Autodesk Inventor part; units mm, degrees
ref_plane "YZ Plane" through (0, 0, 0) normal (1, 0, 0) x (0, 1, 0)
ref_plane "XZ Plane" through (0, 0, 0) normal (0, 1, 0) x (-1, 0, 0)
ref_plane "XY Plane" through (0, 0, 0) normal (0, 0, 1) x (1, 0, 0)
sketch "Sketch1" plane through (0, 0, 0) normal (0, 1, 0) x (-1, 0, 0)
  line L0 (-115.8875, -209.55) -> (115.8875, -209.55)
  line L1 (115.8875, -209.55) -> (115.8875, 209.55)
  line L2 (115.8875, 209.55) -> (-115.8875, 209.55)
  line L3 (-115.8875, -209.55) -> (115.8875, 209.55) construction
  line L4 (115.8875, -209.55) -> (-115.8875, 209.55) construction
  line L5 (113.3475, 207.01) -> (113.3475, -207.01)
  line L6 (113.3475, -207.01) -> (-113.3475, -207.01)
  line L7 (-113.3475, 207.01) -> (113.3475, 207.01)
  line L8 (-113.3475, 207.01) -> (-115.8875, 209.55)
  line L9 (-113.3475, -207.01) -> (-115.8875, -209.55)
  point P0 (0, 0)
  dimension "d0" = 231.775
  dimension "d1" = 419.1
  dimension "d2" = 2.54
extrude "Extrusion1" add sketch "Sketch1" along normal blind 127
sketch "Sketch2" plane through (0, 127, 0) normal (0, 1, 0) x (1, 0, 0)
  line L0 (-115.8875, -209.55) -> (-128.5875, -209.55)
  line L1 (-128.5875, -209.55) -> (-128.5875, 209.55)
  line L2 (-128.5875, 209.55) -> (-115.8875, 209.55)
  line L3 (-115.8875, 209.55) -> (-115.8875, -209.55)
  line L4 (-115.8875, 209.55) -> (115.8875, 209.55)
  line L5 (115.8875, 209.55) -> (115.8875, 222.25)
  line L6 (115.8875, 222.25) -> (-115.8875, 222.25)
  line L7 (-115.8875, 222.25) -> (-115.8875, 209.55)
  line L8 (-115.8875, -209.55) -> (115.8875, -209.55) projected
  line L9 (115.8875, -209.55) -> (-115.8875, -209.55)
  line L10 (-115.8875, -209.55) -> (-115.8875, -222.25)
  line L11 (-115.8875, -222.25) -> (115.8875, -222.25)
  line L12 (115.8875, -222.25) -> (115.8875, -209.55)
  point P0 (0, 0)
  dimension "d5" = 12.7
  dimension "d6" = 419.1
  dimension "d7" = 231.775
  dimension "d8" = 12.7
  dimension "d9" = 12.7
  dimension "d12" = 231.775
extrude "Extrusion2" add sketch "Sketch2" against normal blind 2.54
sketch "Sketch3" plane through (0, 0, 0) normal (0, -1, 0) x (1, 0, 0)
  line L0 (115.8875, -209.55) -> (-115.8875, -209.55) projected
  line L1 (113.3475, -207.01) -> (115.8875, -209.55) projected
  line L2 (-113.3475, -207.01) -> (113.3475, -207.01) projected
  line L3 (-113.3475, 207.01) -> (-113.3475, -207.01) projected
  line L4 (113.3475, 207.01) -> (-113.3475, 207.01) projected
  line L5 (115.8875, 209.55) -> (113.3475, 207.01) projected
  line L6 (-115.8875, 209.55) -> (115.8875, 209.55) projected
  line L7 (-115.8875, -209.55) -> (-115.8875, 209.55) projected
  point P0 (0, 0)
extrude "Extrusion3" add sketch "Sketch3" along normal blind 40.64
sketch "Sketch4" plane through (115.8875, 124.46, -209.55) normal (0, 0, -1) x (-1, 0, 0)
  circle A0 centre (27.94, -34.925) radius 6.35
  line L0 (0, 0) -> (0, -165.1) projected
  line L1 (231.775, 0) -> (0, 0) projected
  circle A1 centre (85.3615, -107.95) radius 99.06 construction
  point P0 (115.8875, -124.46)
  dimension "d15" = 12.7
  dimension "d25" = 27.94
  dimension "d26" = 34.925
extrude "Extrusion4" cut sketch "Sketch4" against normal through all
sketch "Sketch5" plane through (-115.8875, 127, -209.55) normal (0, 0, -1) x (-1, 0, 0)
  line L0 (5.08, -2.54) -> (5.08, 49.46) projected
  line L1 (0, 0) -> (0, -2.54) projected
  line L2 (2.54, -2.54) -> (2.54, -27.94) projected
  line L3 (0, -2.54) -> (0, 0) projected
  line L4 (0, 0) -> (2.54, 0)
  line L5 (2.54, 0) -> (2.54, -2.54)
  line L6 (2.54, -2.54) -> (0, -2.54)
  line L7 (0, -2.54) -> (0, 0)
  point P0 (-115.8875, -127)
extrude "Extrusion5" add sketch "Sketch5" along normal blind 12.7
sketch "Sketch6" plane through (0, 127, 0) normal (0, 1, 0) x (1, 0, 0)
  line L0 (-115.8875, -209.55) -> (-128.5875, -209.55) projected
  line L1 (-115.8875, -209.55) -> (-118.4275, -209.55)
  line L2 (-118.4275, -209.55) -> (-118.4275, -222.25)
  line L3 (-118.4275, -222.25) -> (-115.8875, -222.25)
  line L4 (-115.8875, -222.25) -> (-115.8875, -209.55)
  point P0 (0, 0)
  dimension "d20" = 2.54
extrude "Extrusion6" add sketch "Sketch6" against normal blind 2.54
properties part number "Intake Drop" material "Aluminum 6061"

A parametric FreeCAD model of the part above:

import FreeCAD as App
import Part
import Sketcher

V = App.Vector
Q = App.Units.Quantity


def add_polygon(sketch, points):
    """Adds a closed chain of lines whose ends are joined by coincident constraints."""
    first, n = sketch.GeometryCount, len(points)
    for a, b in zip(points, points[1:] + points[:1]):
        sketch.addGeometry(Part.LineSegment(App.Vector(*a, 0), App.Vector(*b, 0)), False)
    for i in range(n):
        sketch.addConstraint(Sketcher.Constraint("Coincident", first + i, 2, first + (i + 1) % n, 1))

doc = App.newDocument("Part")
body = doc.addObject("PartDesign::Body", "Body")

sketch1 = body.newObject("Sketcher::SketchObject", "Sketch")
sketch1.AttachmentSupport = (doc.getObject("XZ_Plane"), [""])
sketch1.MapMode = "FlatFace"
add_polygon(sketch1, [(113.3, -207), (115.9, -209.6), (-115.9, -209.6), (-115.9, 209.6), (115.9, 209.6), (113.3, 207), (-113.3, 207), (-113.3, -207)])
sketch1.addConstraint([
    Sketcher.Constraint("Horizontal", 1),
    Sketcher.Constraint("Vertical", 2),
    Sketcher.Constraint("Horizontal", 3),
    Sketcher.Constraint("Horizontal", 5),
    Sketcher.Constraint("Vertical", 6),
    Sketcher.Constraint("Horizontal", 7),
    Sketcher.Constraint("Symmetric", 0, 2, 2, 2, -1, 1),
    Sketcher.Constraint("Symmetric", 4, 2, 6, 2, -1, 1),
    Sketcher.Constraint("Perpendicular", 0, 4),
    Sketcher.Constraint("Vertical", 0, 2, 3, 2),
    Sketcher.Constraint("Vertical", 4, 2, 7, 2),
    Sketcher.Constraint("DistanceY", 2, 1, 2, 2, Q("16.5 in")),
    Sketcher.Constraint("DistanceX", 4, 2, 3, 2, Q("0.1 in")),
    Sketcher.Constraint("DistanceX", 1, 2, 1, 1, Q("9.125 in")),
])
pad1 = body.newObject("PartDesign::Pad", "Pad")
pad1.Profile = sketch1
pad1.Length = Q("5 in")
pad1.Reversed = True

sketch2 = body.newObject("Sketcher::SketchObject", "Sketch001")
sketch2.AttachmentSupport = (doc.getObject("XZ_Plane"), [""])
sketch2.MapMode = "FlatFace"
sketch2.AttachmentOffset = App.Placement(V(0, 0, -5 * 25.4), App.Rotation())
add_polygon(sketch2, [(-116, -222), (-116, -210), (116, -210), (116, -222)])
add_polygon(sketch2, [(-129, 210), (-116, 210), (-116, -210), (-129, -210)])
add_polygon(sketch2, [(116, 210), (-116, 210), (-116, 222), (116, 222)])
sketch2.addConstraint([
    Sketcher.Constraint("Vertical", 0),
    Sketcher.Constraint("Horizontal", 1),
    Sketcher.Constraint("Vertical", 2),
    Sketcher.Constraint("Horizontal", 3),
    Sketcher.Constraint("Horizontal", 4),
    Sketcher.Constraint("Vertical", 5),
    Sketcher.Constraint("Horizontal", 6),
    Sketcher.Constraint("Vertical", 7),
    Sketcher.Constraint("Horizontal", 8),
    Sketcher.Constraint("Vertical", 9),
    Sketcher.Constraint("Horizontal", 10),
    Sketcher.Constraint("Vertical", 11),
    Sketcher.Constraint("Coincident", 5, 2, 0, 2),
    Sketcher.Constraint("Coincident", 8, 2, 4, 2),
    Sketcher.Constraint("Symmetric", 1, 2, 4, 2, -1, 1),
    Sketcher.Constraint("Symmetric", 3, 2, 10, 2, -1, 1),
    Sketcher.Constraint("Equal", 6, 0),
    Sketcher.Constraint("DistanceX", 4, 1, 4, 2, Q("0.5 in")),
    Sketcher.Constraint("DistanceY", 5, 2, 5, 1, Q("16.5 in")),
    Sketcher.Constraint("DistanceX", 1, 1, 1, 2, Q("9.125 in")),
])
pad2 = body.newObject("PartDesign::Pad", "Pad001")
pad2.Profile = sketch2
pad2.Length = Q("0.1 in")

sketch3 = body.newObject("Sketcher::SketchObject", "Sketch002")
sketch3.AttachmentSupport = (doc.getObject("XZ_Plane"), [""])
sketch3.MapMode = "FlatFace"
add_polygon(sketch3, [(-115.9, -209.6), (115.9, -209.6), (113.3, -207), (-113.3, -207), (-113.3, 207), (113.3, 207), (115.9, 209.6), (-115.9, 209.6)])
sketch3.addConstraint([
    Sketcher.Constraint("Horizontal", 0),
    Sketcher.Constraint("Horizontal", 2),
    Sketcher.Constraint("Vertical", 3),
    Sketcher.Constraint("Horizontal", 4),
    Sketcher.Constraint("Horizontal", 6),
    Sketcher.Constraint("Vertical", 7),
    Sketcher.Constraint("Symmetric", 1, 2, 3, 2, -1, 1),
    Sketcher.Constraint("Symmetric", 0, 2, 6, 2, -1, 1),
    Sketcher.Constraint("Perpendicular", 1, 5),
    Sketcher.Constraint("Vertical", 1, 2, 4, 2),
    Sketcher.Constraint("Vertical", 0, 2, 5, 2),
    Sketcher.Constraint("DistanceY", 3, 1, 3, 2, Q("16.3 in")),
    Sketcher.Constraint("DistanceY", 7, 2, 7, 1, Q("16.5 in")),
    Sketcher.Constraint("DistanceX", 0, 1, 0, 2, Q("9.125 in")),
])
pad3 = body.newObject("PartDesign::Pad", "Pad002")
pad3.Profile = sketch3
pad3.Length = Q("1.6 in")

sketch4 = body.newObject("Sketcher::SketchObject", "Sketch003")
sketch4.AttachmentSupport = (doc.getObject("XY_Plane"), [""])
sketch4.MapMode = "FlatFace"
sketch4.AttachmentOffset = App.Placement(V(0, 0, -8.25 * 25.4), App.Rotation())
sketch4.addGeometry(Part.Circle(V(88, 90, 0), V(0, 0, 1), 6), False)
sketch4.addConstraint([
    Sketcher.Constraint("Diameter", 0, Q("0.5 in")),
    Sketcher.Constraint("DistanceY", -1, 1, 0, 3, Q("3.525 in")),
    Sketcher.Constraint("DistanceX", -1, 1, 0, 3, Q("3.4625 in")),
])
pocket1 = body.newObject("PartDesign::Pocket", "Pocket")
pocket1.Profile = sketch4
pocket1.Type = "ThroughAll"
pocket1.Reversed = True

sketch5 = body.newObject("Sketcher::SketchObject", "Sketch004")
sketch5.AttachmentSupport = (doc.getObject("XY_Plane"), [""])
sketch5.MapMode = "FlatFace"
sketch5.AttachmentOffset = App.Placement(V(0, 0, -8.25 * 25.4), App.Rotation())
add_polygon(sketch5, [(-118.4, 127), (-115.9, 127), (-115.9, 124.5), (-118.4, 124.5)])
sketch5.addConstraint([
    Sketcher.Constraint("Horizontal", 0),
    Sketcher.Constraint("Vertical", 1),
    Sketcher.Constraint("Horizontal", 2),
    Sketcher.Constraint("Vertical", 3),
    Sketcher.Constraint("Equal", 2, 1),
    Sketcher.Constraint("DistanceX", 0, 1, 0, 2, Q("0.1 in")),
    Sketcher.Constraint("DistanceY", -1, 1, 0, 2, Q("5 in")),
    Sketcher.Constraint("DistanceX", 0, 2, -1, 1, Q("4.5625 in")),
])
pad4 = body.newObject("PartDesign::Pad", "Pad003")
pad4.Profile = sketch5
pad4.Length = Q("0.5 in")
pad4.Reversed = True

sketch6 = body.newObject("Sketcher::SketchObject", "Sketch005")
sketch6.AttachmentSupport = (doc.getObject("XZ_Plane"), [""])
sketch6.MapMode = "FlatFace"
sketch6.AttachmentOffset = App.Placement(V(0, 0, -5 * 25.4), App.Rotation())
add_polygon(sketch6, [(-115.9, 222.2), (-115.9, 209.6), (-118.4, 209.6), (-118.4, 222.2)])
sketch6.addConstraint([
    Sketcher.Constraint("Vertical", 0),
    Sketcher.Constraint("Horizontal", 1),
    Sketcher.Constraint("Vertical", 2),
    Sketcher.Constraint("Horizontal", 3),
    Sketcher.Constraint("DistanceX", 1, 2, 1, 1, Q("0.1 in")),
    Sketcher.Constraint("DistanceY", 0, 2, 0, 1, Q("0.5 in")),
    Sketcher.Constraint("DistanceY", -1, 1, 0, 2, Q("8.25 in")),
    Sketcher.Constraint("DistanceX", 0, 2, -1, 1, Q("4.5625 in")),
])
pad5 = body.newObject("PartDesign::Pad", "Pad004")
pad5.Profile = sketch6
pad5.Length = Q("0.1 in")

doc.recompute()
